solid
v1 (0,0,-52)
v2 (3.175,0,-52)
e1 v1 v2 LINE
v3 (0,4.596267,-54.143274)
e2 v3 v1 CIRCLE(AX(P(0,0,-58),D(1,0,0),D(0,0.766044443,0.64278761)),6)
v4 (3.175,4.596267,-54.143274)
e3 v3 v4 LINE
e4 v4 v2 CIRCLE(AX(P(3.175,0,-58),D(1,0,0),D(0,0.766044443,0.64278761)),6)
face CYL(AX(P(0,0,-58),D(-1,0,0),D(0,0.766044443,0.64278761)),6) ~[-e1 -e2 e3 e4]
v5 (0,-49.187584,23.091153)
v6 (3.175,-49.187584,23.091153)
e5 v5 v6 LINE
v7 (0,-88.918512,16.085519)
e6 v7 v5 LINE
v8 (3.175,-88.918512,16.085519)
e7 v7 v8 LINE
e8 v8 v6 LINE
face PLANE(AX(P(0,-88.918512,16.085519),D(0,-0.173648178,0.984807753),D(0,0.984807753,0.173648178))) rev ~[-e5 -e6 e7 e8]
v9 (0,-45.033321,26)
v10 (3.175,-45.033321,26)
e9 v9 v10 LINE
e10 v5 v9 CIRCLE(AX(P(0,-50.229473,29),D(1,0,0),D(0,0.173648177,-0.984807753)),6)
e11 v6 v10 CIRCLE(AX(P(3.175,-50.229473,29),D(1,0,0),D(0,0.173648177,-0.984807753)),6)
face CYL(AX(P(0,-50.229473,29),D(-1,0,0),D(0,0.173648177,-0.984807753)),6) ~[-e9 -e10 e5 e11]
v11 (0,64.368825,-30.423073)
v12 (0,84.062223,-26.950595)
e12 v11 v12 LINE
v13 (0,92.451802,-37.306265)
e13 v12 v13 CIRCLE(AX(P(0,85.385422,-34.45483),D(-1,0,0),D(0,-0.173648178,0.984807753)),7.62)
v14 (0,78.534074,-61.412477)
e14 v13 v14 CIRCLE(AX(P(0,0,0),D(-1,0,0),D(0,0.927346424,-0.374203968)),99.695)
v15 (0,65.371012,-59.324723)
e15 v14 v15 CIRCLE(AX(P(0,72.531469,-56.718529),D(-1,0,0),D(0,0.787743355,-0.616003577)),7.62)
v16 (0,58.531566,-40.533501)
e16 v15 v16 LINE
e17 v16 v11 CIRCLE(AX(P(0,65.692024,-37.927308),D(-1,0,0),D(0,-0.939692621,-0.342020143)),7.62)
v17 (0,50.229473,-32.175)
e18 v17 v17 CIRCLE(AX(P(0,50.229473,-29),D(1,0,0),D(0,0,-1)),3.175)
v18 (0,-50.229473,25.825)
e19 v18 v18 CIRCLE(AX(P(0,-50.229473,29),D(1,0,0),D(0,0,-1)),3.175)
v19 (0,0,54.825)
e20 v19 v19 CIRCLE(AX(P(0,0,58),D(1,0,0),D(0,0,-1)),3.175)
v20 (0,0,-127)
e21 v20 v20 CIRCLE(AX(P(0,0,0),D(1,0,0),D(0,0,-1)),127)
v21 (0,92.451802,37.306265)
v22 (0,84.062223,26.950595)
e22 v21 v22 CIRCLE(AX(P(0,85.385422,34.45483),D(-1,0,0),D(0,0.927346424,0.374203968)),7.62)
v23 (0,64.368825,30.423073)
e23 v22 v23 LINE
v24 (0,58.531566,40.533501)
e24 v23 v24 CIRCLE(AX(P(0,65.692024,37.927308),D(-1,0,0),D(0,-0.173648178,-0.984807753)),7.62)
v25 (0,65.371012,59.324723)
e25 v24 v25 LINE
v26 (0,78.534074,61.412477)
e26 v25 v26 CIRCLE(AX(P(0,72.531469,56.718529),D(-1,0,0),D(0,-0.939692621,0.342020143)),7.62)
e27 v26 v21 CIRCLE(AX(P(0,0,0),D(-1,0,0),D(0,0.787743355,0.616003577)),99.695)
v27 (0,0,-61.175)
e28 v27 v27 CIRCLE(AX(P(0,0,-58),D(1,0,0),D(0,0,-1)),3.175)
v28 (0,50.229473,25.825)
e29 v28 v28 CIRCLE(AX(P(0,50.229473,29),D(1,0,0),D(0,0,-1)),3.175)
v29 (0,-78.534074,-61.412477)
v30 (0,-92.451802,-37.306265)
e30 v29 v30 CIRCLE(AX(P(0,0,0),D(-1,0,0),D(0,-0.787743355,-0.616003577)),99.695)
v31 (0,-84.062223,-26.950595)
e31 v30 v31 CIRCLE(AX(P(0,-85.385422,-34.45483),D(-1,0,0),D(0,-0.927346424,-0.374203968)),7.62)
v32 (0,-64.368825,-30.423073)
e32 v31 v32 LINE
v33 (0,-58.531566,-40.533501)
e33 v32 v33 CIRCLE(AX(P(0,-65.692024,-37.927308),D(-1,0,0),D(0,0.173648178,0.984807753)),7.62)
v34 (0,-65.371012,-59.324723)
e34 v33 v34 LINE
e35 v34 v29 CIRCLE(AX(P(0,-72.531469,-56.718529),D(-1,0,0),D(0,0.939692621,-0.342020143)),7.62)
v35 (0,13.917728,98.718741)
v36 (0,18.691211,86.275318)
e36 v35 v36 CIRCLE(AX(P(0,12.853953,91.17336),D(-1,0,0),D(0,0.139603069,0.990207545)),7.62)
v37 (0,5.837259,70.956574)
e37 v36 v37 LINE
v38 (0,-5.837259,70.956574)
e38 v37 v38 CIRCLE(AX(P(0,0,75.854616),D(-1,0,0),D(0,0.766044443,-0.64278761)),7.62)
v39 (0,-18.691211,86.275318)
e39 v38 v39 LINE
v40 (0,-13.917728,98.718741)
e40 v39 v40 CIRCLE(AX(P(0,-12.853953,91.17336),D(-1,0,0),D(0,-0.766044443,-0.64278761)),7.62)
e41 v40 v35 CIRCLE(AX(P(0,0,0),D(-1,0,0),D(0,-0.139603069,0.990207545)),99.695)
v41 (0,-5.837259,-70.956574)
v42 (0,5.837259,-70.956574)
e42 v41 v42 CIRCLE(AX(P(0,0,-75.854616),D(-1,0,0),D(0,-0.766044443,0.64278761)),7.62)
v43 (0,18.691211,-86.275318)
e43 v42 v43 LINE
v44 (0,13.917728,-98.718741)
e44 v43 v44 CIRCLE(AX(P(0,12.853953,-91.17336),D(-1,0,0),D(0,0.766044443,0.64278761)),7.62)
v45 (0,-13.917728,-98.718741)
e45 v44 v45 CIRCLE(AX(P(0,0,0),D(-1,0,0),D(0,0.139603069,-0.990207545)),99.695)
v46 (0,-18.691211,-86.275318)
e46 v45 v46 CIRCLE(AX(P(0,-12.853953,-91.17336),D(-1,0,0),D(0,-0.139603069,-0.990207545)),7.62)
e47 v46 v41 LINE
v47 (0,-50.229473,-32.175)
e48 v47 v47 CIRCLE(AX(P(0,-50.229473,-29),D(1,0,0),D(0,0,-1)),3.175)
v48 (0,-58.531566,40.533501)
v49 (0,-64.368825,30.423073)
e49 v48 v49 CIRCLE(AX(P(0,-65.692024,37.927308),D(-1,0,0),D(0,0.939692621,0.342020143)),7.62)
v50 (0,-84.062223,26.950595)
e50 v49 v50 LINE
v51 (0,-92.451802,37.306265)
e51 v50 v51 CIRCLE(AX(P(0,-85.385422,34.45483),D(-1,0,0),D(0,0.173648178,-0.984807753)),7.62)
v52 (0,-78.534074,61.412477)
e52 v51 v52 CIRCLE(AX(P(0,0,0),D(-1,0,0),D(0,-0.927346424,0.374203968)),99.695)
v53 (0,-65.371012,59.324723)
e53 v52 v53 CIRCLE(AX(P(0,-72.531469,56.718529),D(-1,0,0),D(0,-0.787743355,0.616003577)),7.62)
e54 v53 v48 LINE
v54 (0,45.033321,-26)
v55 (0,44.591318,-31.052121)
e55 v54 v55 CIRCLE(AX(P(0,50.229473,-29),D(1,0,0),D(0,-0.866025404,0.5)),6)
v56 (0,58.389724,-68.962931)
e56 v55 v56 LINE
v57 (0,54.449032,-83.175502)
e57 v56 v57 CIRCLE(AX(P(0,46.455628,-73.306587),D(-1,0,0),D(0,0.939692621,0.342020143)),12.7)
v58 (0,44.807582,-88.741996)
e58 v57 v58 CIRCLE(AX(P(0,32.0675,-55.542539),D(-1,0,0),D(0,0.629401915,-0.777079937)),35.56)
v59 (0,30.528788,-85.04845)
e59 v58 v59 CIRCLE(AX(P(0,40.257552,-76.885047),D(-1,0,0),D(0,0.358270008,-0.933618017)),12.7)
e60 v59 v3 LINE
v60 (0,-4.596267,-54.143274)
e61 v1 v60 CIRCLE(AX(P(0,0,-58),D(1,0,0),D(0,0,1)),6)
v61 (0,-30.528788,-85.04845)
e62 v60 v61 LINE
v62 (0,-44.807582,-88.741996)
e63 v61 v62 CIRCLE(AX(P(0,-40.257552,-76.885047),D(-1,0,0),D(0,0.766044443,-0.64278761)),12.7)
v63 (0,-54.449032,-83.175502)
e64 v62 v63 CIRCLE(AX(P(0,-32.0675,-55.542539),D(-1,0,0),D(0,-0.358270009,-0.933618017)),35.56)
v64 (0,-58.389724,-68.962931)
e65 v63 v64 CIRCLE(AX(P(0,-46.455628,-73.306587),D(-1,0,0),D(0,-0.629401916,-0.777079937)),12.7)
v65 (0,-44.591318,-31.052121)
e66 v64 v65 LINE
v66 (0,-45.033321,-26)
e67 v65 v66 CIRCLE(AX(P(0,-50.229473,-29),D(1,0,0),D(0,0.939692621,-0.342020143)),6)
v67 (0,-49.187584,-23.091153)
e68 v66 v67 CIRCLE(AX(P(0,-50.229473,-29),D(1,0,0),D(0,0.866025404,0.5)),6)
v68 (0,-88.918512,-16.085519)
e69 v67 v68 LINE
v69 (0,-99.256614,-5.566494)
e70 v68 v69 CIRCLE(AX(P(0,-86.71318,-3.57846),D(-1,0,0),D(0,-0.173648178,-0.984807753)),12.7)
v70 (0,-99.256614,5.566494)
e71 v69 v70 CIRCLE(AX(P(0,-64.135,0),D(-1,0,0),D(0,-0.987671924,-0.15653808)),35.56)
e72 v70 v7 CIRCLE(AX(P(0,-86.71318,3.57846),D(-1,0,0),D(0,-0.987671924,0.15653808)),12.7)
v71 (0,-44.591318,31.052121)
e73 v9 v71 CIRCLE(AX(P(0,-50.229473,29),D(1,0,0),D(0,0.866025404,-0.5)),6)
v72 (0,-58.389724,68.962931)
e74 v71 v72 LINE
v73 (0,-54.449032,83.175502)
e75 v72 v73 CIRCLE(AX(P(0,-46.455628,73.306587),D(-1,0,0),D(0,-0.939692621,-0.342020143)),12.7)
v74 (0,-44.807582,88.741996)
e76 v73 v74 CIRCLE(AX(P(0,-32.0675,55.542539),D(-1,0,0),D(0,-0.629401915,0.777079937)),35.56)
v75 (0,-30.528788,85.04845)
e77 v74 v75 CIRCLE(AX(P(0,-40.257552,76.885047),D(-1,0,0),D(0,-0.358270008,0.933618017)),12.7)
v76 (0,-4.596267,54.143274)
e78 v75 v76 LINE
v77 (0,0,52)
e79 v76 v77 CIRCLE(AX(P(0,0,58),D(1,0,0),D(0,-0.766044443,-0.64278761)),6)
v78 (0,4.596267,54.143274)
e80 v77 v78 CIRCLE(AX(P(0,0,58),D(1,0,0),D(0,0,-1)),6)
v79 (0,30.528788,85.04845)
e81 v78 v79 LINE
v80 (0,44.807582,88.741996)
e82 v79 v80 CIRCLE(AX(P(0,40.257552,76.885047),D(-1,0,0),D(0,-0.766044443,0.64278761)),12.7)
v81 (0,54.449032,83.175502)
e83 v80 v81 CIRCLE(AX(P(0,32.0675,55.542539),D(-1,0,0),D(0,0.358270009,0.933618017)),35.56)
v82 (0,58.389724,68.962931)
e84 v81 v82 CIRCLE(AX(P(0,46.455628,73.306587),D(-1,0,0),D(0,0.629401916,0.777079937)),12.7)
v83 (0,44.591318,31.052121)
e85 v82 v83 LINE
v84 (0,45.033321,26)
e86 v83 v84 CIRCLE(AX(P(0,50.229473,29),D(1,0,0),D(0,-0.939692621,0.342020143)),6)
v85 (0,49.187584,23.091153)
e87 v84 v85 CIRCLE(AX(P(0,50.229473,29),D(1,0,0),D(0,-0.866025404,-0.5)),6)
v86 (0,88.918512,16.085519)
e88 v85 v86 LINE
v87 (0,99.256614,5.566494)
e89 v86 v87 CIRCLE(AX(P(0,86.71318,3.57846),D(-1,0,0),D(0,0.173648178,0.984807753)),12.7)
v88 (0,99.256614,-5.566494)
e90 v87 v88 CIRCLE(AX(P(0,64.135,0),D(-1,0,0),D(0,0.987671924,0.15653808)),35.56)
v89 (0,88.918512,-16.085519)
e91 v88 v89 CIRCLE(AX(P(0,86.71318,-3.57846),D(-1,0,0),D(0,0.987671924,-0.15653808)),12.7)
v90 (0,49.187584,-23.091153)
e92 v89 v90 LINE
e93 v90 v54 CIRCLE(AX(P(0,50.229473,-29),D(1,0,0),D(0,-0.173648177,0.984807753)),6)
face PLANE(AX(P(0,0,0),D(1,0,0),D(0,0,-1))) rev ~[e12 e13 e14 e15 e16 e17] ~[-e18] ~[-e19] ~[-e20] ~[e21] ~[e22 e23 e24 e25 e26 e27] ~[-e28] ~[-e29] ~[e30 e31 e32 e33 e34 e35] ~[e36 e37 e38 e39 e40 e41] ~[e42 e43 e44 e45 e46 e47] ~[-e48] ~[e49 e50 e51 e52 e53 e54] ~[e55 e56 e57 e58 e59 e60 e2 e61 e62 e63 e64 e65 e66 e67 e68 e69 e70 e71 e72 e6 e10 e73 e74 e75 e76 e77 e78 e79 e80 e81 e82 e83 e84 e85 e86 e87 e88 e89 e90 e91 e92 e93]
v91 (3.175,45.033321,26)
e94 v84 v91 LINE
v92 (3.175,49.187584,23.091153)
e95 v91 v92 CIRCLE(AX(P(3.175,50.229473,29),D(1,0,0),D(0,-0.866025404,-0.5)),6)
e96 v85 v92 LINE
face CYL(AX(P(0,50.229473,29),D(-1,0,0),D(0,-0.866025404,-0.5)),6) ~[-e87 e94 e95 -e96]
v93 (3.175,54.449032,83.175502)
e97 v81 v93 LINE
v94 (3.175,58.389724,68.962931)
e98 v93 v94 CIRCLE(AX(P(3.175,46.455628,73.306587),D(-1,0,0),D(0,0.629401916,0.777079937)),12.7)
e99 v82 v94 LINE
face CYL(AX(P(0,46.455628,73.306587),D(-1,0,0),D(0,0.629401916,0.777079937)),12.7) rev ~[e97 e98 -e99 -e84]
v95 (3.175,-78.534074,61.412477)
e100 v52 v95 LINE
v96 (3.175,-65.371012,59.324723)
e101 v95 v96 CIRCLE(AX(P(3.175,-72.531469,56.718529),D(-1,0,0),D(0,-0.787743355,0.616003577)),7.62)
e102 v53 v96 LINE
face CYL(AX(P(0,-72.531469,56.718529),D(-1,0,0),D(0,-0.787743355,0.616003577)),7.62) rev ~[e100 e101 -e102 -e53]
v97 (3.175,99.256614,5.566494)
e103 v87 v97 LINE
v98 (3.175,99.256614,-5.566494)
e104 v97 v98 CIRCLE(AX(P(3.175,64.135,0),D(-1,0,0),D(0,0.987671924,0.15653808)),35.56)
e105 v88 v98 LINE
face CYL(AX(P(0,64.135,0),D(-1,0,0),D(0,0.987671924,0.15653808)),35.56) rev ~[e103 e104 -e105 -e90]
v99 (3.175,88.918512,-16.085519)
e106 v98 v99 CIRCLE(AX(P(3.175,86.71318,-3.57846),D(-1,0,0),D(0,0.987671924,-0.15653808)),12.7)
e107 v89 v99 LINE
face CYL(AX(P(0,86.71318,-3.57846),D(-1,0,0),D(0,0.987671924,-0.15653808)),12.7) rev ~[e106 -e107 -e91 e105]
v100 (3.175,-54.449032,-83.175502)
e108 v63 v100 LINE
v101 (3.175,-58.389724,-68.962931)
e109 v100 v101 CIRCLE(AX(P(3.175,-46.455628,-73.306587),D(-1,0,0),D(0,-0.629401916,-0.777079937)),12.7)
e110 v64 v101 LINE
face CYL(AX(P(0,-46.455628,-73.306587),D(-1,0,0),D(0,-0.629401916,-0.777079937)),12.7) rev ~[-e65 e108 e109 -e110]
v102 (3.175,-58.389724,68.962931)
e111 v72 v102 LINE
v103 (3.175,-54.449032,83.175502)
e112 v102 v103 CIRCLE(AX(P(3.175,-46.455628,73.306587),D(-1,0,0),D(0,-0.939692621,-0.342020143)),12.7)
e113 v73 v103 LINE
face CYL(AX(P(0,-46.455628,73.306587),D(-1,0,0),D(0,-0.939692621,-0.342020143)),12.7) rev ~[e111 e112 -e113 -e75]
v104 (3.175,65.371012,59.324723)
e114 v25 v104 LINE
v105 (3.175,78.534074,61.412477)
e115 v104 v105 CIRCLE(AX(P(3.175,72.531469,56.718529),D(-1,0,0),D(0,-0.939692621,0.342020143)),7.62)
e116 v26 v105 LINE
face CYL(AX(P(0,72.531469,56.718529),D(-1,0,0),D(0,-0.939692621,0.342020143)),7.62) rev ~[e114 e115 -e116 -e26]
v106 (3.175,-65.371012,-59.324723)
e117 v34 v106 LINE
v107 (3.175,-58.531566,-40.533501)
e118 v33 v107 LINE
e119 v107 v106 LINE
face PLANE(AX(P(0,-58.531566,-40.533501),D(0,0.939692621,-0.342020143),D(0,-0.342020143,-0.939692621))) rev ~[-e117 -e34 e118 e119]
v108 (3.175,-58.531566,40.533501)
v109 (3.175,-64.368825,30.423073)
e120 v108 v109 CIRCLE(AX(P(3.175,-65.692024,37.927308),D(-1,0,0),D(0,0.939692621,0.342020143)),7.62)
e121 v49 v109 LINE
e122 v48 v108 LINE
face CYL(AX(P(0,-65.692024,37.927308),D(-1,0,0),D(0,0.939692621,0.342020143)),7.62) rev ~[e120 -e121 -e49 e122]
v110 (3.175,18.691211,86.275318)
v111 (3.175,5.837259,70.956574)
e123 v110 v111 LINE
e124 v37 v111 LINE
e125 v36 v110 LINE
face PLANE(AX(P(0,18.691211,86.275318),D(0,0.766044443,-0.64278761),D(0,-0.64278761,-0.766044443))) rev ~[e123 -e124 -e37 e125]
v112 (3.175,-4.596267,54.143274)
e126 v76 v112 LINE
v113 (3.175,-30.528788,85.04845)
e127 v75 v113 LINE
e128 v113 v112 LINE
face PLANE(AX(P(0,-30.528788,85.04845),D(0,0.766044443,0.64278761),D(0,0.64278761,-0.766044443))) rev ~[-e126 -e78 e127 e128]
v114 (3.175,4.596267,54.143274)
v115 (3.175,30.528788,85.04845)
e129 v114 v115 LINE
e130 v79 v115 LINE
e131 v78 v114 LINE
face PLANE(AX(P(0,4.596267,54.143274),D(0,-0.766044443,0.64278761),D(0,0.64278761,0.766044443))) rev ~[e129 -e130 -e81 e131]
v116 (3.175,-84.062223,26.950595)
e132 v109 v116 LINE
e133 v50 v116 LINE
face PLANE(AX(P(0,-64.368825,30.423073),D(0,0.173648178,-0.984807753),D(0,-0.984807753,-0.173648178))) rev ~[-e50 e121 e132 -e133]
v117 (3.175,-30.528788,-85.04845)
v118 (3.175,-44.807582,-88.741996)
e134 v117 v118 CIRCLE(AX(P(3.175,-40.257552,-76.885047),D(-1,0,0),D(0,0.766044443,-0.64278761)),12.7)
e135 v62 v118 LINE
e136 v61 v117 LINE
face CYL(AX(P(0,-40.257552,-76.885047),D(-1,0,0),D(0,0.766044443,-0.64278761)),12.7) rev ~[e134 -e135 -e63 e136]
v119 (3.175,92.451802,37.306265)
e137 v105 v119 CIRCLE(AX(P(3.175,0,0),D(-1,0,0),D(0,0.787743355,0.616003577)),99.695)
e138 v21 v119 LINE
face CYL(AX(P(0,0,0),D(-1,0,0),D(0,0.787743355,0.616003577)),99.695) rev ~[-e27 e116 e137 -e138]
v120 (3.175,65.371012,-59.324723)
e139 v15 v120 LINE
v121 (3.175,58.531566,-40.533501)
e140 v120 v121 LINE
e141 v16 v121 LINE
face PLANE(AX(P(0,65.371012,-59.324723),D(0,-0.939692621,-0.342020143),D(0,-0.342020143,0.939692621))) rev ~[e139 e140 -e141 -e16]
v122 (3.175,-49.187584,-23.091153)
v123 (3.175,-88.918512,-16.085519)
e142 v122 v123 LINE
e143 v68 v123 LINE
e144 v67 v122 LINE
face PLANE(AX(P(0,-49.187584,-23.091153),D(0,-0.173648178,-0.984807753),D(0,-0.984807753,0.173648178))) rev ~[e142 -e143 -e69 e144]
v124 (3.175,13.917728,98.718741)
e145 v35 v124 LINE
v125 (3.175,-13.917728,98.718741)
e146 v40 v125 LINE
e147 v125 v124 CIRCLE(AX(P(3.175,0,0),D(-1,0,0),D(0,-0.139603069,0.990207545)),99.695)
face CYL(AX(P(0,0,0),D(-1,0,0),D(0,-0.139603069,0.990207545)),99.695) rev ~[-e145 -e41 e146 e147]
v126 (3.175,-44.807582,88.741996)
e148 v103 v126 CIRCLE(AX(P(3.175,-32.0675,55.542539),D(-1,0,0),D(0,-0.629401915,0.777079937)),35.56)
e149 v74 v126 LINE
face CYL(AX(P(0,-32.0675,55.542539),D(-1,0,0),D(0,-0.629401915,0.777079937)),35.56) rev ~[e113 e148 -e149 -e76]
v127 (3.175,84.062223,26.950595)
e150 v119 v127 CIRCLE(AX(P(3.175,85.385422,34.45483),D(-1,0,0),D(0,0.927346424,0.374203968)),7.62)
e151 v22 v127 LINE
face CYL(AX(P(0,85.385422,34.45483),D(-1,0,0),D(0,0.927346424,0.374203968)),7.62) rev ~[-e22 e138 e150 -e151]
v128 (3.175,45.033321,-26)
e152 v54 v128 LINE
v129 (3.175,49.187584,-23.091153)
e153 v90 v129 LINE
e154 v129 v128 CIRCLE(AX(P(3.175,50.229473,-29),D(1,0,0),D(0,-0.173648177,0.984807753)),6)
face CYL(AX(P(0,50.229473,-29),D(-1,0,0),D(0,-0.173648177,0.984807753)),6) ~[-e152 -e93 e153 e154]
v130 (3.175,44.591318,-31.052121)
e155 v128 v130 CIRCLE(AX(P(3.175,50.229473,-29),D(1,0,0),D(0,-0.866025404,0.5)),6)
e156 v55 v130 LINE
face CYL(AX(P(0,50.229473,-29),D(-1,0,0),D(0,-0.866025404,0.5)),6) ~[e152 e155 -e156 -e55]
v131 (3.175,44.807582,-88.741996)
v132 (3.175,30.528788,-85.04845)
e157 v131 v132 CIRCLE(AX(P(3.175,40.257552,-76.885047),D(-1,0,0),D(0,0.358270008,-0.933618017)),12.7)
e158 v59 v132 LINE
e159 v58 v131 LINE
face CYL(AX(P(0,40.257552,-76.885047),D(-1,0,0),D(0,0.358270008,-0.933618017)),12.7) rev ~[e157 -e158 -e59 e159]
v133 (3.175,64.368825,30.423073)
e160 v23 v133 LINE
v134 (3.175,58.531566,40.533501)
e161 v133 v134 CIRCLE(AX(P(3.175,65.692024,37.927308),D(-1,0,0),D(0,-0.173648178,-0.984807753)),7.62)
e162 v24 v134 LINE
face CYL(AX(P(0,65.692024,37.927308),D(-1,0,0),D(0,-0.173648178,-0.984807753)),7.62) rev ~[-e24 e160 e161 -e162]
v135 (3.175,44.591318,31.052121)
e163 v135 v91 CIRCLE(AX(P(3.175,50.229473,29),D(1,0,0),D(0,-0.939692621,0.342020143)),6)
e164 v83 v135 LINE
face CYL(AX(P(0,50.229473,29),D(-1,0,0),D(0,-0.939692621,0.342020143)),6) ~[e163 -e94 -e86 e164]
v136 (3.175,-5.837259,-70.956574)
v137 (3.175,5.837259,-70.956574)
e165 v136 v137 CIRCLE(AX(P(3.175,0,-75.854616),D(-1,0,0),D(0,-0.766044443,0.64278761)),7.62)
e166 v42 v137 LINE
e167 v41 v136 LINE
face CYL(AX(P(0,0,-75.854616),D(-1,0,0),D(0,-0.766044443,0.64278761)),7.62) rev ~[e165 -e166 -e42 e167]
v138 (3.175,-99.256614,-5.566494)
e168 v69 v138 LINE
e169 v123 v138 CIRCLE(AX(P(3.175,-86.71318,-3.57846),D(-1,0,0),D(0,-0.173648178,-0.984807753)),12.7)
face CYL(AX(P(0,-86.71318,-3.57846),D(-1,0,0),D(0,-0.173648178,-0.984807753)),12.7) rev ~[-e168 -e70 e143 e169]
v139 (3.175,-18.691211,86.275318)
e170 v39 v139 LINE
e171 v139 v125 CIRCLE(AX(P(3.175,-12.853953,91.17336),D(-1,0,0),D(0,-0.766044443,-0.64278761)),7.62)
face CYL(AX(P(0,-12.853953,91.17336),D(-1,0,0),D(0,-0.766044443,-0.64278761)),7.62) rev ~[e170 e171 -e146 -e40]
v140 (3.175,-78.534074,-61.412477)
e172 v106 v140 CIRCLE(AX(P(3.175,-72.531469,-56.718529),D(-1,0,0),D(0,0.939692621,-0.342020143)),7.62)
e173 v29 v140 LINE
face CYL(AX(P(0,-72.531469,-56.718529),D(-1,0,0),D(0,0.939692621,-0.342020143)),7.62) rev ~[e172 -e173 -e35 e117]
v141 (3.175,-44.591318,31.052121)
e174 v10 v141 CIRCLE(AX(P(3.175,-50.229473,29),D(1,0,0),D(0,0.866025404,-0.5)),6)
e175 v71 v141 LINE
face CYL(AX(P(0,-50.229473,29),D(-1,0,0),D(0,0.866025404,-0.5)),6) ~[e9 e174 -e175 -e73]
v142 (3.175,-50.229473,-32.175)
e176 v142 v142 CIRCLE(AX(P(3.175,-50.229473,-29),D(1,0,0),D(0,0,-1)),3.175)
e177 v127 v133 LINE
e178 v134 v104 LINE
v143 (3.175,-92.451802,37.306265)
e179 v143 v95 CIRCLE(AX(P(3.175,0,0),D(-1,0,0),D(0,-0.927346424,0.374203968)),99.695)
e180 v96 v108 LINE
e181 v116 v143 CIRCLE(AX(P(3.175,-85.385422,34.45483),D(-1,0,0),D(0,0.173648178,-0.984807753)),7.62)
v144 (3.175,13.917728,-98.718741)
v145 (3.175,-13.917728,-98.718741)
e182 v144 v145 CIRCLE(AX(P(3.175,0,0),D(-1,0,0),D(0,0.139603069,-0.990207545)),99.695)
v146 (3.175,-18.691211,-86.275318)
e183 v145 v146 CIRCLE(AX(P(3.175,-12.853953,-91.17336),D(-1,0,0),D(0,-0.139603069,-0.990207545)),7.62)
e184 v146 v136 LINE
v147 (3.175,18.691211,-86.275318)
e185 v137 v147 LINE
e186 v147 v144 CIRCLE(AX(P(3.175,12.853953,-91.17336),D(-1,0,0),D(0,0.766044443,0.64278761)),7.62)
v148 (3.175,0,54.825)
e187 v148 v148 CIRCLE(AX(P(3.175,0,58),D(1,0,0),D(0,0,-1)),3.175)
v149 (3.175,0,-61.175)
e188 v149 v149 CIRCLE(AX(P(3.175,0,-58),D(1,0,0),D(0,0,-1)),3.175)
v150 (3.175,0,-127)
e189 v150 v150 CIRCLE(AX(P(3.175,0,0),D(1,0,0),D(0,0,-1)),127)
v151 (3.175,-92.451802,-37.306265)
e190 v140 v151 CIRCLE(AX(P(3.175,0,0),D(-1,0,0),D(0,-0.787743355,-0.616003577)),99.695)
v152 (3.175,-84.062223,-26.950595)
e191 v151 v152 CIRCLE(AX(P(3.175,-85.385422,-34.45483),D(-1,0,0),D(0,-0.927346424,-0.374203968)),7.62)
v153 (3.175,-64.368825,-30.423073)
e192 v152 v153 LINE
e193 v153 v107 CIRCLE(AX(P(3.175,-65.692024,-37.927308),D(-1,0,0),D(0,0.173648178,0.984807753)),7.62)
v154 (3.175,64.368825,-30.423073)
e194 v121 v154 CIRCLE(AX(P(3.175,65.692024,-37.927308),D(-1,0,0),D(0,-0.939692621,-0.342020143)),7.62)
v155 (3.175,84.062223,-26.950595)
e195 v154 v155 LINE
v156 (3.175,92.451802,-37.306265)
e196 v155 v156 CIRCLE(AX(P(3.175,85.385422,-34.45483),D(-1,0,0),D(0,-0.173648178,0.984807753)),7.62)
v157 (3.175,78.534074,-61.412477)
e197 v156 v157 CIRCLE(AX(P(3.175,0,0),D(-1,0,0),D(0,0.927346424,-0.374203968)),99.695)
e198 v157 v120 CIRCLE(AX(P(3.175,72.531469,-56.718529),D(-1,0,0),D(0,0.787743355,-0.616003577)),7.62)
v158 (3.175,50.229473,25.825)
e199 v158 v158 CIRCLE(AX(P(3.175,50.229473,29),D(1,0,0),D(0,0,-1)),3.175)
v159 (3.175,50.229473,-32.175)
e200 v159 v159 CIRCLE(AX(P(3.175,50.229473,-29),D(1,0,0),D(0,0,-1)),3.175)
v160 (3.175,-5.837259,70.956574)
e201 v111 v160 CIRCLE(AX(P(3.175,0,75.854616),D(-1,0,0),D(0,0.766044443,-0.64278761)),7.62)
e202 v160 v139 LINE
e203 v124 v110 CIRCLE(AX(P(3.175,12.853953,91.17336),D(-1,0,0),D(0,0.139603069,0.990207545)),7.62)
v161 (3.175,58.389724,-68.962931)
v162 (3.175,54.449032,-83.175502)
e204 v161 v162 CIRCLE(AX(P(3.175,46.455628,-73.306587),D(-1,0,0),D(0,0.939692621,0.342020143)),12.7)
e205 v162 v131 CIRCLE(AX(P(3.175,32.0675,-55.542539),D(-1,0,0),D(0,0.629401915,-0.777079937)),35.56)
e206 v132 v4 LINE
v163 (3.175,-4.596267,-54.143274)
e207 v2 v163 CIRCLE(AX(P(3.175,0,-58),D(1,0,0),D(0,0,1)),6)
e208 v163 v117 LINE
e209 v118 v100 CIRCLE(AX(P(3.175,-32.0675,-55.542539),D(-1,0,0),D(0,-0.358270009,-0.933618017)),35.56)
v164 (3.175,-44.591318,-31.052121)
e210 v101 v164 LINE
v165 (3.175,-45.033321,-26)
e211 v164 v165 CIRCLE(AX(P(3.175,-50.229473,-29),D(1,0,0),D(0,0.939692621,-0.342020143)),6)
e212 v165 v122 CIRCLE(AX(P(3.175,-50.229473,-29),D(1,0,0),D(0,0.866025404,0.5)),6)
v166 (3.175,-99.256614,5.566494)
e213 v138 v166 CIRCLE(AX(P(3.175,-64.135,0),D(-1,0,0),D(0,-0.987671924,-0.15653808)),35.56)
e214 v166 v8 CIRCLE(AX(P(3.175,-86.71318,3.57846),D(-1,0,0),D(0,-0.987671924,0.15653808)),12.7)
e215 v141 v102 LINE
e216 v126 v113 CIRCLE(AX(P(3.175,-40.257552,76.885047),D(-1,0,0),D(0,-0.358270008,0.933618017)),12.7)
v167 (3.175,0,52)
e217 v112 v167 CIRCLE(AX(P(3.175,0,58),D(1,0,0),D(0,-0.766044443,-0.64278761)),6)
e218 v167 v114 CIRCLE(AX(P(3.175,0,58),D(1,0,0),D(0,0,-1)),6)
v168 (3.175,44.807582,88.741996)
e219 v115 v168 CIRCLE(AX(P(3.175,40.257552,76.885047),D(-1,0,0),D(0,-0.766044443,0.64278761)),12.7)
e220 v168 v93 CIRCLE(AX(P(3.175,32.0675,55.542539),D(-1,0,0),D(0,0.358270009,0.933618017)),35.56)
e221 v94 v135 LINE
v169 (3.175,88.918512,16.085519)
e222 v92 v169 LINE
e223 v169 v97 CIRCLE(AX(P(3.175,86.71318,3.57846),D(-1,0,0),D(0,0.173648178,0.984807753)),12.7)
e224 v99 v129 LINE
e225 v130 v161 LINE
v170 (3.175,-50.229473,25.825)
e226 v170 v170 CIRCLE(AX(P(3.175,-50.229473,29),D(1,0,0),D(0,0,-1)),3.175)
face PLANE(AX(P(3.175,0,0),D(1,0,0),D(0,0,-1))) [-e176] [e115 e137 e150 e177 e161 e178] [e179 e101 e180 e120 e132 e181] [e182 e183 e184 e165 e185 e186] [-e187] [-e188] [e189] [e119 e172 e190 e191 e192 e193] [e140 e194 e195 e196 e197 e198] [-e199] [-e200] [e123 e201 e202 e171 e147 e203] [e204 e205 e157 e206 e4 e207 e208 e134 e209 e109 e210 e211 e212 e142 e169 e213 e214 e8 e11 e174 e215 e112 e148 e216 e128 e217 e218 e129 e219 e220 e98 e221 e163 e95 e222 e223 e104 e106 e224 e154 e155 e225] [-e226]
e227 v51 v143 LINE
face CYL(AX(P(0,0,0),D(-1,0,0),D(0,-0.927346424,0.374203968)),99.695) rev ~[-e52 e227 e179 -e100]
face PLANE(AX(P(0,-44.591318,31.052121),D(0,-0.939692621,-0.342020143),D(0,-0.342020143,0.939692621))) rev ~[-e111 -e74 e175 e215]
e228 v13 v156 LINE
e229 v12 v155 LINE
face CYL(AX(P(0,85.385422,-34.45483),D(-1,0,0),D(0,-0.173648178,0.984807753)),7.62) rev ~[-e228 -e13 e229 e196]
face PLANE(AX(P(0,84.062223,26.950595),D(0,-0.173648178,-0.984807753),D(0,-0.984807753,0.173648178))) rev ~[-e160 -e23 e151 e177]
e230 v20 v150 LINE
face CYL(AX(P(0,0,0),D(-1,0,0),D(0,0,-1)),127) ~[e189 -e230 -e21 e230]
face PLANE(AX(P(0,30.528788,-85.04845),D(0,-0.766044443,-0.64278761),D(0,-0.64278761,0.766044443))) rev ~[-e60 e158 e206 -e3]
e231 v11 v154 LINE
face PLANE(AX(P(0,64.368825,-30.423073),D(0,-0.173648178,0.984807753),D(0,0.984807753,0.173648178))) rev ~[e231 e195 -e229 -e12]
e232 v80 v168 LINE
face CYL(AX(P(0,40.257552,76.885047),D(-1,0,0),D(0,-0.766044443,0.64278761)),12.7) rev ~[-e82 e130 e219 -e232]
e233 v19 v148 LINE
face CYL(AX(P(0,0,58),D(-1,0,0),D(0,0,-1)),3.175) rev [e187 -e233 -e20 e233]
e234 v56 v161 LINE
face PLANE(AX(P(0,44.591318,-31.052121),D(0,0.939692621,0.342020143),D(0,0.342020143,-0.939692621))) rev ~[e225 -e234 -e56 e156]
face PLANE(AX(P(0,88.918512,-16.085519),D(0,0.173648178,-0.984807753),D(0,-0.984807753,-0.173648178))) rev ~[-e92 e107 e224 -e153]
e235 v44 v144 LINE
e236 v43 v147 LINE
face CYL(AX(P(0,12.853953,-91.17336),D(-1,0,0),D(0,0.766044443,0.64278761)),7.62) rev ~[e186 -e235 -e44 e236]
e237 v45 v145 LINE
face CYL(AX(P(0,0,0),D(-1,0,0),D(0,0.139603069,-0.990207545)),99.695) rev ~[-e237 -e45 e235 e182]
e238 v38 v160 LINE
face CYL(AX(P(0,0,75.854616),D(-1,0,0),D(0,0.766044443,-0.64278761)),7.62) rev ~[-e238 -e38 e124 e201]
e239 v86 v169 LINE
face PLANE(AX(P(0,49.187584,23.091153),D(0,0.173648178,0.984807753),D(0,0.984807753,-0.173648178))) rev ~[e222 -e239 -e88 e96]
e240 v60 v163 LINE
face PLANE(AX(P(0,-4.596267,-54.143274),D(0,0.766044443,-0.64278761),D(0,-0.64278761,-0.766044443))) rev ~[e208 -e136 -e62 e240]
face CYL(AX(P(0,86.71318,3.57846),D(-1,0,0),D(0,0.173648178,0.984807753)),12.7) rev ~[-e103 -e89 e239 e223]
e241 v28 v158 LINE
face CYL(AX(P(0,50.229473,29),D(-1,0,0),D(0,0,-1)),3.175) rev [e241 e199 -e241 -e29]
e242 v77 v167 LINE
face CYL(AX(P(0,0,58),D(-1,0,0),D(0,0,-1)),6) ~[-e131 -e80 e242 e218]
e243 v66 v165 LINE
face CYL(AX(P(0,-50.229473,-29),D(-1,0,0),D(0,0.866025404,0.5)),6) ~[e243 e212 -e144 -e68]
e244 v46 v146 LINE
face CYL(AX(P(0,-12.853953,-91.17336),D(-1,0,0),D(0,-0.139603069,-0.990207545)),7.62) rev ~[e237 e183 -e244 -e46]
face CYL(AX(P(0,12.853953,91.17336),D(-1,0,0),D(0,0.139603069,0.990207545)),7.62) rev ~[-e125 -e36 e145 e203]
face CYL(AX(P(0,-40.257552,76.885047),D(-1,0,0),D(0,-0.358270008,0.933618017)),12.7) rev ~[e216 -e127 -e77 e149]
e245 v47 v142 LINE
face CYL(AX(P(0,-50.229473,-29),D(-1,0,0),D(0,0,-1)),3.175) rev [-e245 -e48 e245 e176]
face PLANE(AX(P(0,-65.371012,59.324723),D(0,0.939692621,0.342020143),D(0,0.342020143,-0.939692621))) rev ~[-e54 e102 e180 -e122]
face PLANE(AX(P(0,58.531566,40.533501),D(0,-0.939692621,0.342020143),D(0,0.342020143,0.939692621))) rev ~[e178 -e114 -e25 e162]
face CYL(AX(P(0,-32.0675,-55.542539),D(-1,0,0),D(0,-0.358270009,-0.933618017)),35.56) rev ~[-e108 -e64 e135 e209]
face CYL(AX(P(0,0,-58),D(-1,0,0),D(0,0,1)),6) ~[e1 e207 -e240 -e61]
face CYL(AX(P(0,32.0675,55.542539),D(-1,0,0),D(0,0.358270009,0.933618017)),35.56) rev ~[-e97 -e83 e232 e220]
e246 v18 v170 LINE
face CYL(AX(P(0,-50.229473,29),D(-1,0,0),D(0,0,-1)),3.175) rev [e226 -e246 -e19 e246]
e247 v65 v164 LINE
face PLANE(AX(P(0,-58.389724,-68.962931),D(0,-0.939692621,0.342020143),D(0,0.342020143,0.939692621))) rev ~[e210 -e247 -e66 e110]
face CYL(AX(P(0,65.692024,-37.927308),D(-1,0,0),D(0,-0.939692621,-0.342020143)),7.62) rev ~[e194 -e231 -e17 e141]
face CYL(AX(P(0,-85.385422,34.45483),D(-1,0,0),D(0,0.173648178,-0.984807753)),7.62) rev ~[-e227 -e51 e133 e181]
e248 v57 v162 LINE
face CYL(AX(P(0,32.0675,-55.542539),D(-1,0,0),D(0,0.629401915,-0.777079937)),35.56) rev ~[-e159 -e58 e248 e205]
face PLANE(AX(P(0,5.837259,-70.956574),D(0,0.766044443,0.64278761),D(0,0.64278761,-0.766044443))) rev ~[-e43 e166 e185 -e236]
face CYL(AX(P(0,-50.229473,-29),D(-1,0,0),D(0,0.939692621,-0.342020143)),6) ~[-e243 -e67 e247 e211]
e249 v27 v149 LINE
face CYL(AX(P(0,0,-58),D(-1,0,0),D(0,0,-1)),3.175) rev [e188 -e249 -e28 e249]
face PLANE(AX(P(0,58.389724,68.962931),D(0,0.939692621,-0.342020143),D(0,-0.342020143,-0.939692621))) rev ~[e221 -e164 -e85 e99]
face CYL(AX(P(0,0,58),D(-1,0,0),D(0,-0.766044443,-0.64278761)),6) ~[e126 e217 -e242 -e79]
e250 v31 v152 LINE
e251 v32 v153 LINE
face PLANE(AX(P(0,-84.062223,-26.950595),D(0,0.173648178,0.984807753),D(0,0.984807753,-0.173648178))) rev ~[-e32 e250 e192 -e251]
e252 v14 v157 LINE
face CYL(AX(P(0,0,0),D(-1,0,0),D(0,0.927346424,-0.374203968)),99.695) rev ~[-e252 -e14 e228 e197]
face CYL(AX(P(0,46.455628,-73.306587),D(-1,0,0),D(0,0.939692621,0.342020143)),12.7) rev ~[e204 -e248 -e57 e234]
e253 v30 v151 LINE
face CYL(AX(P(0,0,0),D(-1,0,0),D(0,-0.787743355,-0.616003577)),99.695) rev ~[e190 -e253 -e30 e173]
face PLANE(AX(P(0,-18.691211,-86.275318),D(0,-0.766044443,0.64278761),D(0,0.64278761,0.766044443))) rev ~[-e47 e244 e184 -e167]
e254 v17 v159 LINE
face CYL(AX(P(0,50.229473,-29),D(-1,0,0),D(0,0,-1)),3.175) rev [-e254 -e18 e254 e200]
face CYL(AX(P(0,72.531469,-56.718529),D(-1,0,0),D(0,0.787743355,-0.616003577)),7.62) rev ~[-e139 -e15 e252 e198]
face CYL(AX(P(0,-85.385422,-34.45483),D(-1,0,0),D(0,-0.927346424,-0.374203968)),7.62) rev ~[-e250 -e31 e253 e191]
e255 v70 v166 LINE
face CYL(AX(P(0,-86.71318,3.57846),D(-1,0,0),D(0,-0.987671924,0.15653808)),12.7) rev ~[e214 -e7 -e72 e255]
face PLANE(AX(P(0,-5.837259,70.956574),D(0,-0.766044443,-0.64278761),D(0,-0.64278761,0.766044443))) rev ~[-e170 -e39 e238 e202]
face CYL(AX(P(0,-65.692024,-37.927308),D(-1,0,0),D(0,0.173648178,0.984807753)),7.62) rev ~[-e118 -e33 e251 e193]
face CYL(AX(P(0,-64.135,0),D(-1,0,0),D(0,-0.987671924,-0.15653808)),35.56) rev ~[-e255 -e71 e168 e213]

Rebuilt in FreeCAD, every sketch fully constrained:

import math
import FreeCAD as App
import Part
import Sketcher
Q = App.Units.Quantity

doc = App.newDocument("Part")
params = doc.addObject("Spreadsheet::Sheet", "Params")
for row, (alias, value) in enumerate([
    ("sketch1_diameter", "10 in"),
    ("sketch1_radius", "0.3 in"),
    ("sketch1_radius2", "0.5 in"),
    ("sketch1_radius3", "1.4 in"),
    ("sketch1_diameter2", "0.25 in"),
    ("pad1_length", "0.125 in"),
], start=1):
    params.set(f"A{row}", alias)
    params.set(f"B{row}", "=" + value)
    params.setAlias(f"B{row}", alias)

body = doc.addObject("PartDesign::Body", "Body")

sketch1 = body.newObject("Sketcher::SketchObject", "Sketch")
sketch1.AttachmentSupport = (doc.getObject("YZ_Plane"), [""])
sketch1.MapMode = "FlatFace"
sketch1.addGeometry([
    Part.Circle(App.Vector(0, 0, 0), App.Vector(0, 0, 1), 127),
    Part.LineSegment(App.Vector(-65.4, 59.3, 0), App.Vector(-58.5, 40.5, 0)),
    Part.ArcOfCircle(Part.Circle(App.Vector(-65.7, 37.9, 0), App.Vector(0, 0, 1), 7.6), math.radians(-80), math.radians(20)),
    Part.LineSegment(App.Vector(-64.4, 30.4, 0), App.Vector(-84.1, 27, 0)),
    Part.ArcOfCircle(Part.Circle(App.Vector(-85.4, 34.5, 0), App.Vector(0, 0, 1), 7.6), math.radians(158), math.radians(280)),
    Part.ArcOfCircle(Part.Circle(App.Vector(0, 0, 0), App.Vector(0, 0, 1), 99.7), math.radians(141.98), math.radians(158.02)),
    Part.ArcOfCircle(Part.Circle(App.Vector(-72.5, 56.7, 0), App.Vector(0, 0, 1), 7.6), math.radians(20), math.radians(142)),
    Part.Circle(App.Vector(-50.2, 29, 0), App.Vector(0, 0, 1), 3.2),
    Part.LineSegment(App.Vector(18.7, 86.3, 0), App.Vector(5.8, 71, 0)),
    Part.ArcOfCircle(Part.Circle(App.Vector(0, 75.9, 0), App.Vector(0, 0, 1), 7.6), math.radians(-140), math.radians(-40)),
    Part.LineSegment(App.Vector(-5.8, 71, 0), App.Vector(-18.7, 86.3, 0)),
    Part.ArcOfCircle(Part.Circle(App.Vector(-12.9, 91.2, 0), App.Vector(0, 0, 1), 7.6), math.radians(98), math.radians(220)),
    Part.ArcOfCircle(Part.Circle(App.Vector(0, 0, 0), App.Vector(0, 0, 1), 99.7), math.radians(81.98), math.radians(98.02)),
    Part.ArcOfCircle(Part.Circle(App.Vector(12.9, 91.2, 0), App.Vector(0, 0, 1), 7.6), math.radians(-40), math.radians(82)),
    Part.Circle(App.Vector(0, 58, 0), App.Vector(0, 0, 1), 3.2),
    Part.LineSegment(App.Vector(-84.1, -27, 0), App.Vector(-64.4, -30.4, 0)),
    Part.ArcOfCircle(Part.Circle(App.Vector(-65.7, -37.9, 0), App.Vector(0, 0, 1), 7.6), math.radians(-20), math.radians(80)),
    Part.LineSegment(App.Vector(-58.5, -40.5, 0), App.Vector(-65.4, -59.3, 0)),
    Part.ArcOfCircle(Part.Circle(App.Vector(-72.5, -56.7, 0), App.Vector(0, 0, 1), 7.6), math.radians(-142), math.radians(-20)),
    Part.ArcOfCircle(Part.Circle(App.Vector(0, 0, 0), App.Vector(0, 0, 1), 99.7), math.radians(-158.02), math.radians(-141.98)),
    Part.ArcOfCircle(Part.Circle(App.Vector(-85.4, -34.5, 0), App.Vector(0, 0, 1), 7.6), math.radians(80), math.radians(202)),
    Part.Circle(App.Vector(-50.2, -29, 0), App.Vector(0, 0, 1), 3.2),
    Part.ArcOfCircle(Part.Circle(App.Vector(86.7, -3.6, 0), App.Vector(0, 0, 1), 12.7), math.radians(-80), math.radians(-9)),
    Part.LineSegment(App.Vector(88.9, -16.1, 0), App.Vector(49.2, -23.1, 0)),
    Part.ArcOfCircle(Part.Circle(App.Vector(50.2, -29, 0), App.Vector(0, 0, 1), 6), math.radians(100), math.radians(150)),
    Part.ArcOfCircle(Part.Circle(App.Vector(50.2, -29, 0), App.Vector(0, 0, 1), 6), math.radians(150), math.radians(200)),
    Part.LineSegment(App.Vector(44.6, -31.1, 0), App.Vector(58.4, -69, 0)),
    Part.ArcOfCircle(Part.Circle(App.Vector(46.5, -73.3, 0), App.Vector(0, 0, 1), 12.7), math.radians(-51), math.radians(20)),
    Part.ArcOfCircle(Part.Circle(App.Vector(32.1, -55.5, 0), App.Vector(0, 0, 1), 35.6), math.radians(-69.01), math.radians(-50.99)),
    Part.ArcOfCircle(Part.Circle(App.Vector(40.3, -76.9, 0), App.Vector(0, 0, 1), 12.7), math.radians(-140), math.radians(-69)),
    Part.LineSegment(App.Vector(30.5, -85, 0), App.Vector(4.6, -54.1, 0)),
    Part.ArcOfCircle(Part.Circle(App.Vector(0, -58, 0), App.Vector(0, 0, 1), 6), math.radians(40), math.radians(90)),
    Part.ArcOfCircle(Part.Circle(App.Vector(0, -58, 0), App.Vector(0, 0, 1), 6), math.radians(90), math.radians(140)),
    Part.LineSegment(App.Vector(-4.6, -54.1, 0), App.Vector(-30.5, -85, 0)),
    Part.ArcOfCircle(Part.Circle(App.Vector(-40.3, -76.9, 0), App.Vector(0, 0, 1), 12.7), math.radians(-111), math.radians(-40)),
    Part.ArcOfCircle(Part.Circle(App.Vector(-32.1, -55.5, 0), App.Vector(0, 0, 1), 35.6), math.radians(-129.01), math.radians(-110.99)),
    Part.ArcOfCircle(Part.Circle(App.Vector(-46.5, -73.3, 0), App.Vector(0, 0, 1), 12.7), math.radians(160), math.radians(231)),
    Part.LineSegment(App.Vector(-58.4, -69, 0), App.Vector(-44.6, -31.1, 0)),
    Part.ArcOfCircle(Part.Circle(App.Vector(-50.2, -29, 0), App.Vector(0, 0, 1), 6), math.radians(-20), math.radians(30)),
    Part.ArcOfCircle(Part.Circle(App.Vector(-50.2, -29, 0), App.Vector(0, 0, 1), 6), math.radians(30), math.radians(80)),
    Part.LineSegment(App.Vector(-49.2, -23.1, 0), App.Vector(-88.9, -16.1, 0)),
    Part.ArcOfCircle(Part.Circle(App.Vector(-86.7, -3.6, 0), App.Vector(0, 0, 1), 12.7), math.radians(-171), math.radians(-100)),
    Part.ArcOfCircle(Part.Circle(App.Vector(-64.1, 0, 0), App.Vector(0, 0, 1), 35.6), math.radians(170.99), math.radians(189.01)),
    Part.ArcOfCircle(Part.Circle(App.Vector(-86.7, 3.6, 0), App.Vector(0, 0, 1), 12.7), math.radians(100), math.radians(171)),
    Part.LineSegment(App.Vector(-88.9, 16.1, 0), App.Vector(-49.2, 23.1, 0)),
    Part.ArcOfCircle(Part.Circle(App.Vector(-50.2, 29, 0), App.Vector(0, 0, 1), 6), math.radians(-80), math.radians(-30)),
    Part.ArcOfCircle(Part.Circle(App.Vector(-50.2, 29, 0), App.Vector(0, 0, 1), 6), math.radians(-30), math.radians(20)),
    Part.LineSegment(App.Vector(-44.6, 31.1, 0), App.Vector(-58.4, 69, 0)),
    Part.ArcOfCircle(Part.Circle(App.Vector(-46.5, 73.3, 0), App.Vector(0, 0, 1), 12.7), math.radians(129), math.radians(200)),
    Part.ArcOfCircle(Part.Circle(App.Vector(-32.1, 55.5, 0), App.Vector(0, 0, 1), 35.6), math.radians(110.99), math.radians(129.01)),
    Part.ArcOfCircle(Part.Circle(App.Vector(-40.3, 76.9, 0), App.Vector(0, 0, 1), 12.7), math.radians(40), math.radians(111)),
    Part.LineSegment(App.Vector(-30.5, 85, 0), App.Vector(-4.6, 54.1, 0)),
    Part.ArcOfCircle(Part.Circle(App.Vector(0, 58, 0), App.Vector(0, 0, 1), 6), math.radians(-140), math.radians(-90)),
    Part.ArcOfCircle(Part.Circle(App.Vector(0, 58, 0), App.Vector(0, 0, 1), 6), math.radians(-90), math.radians(-40)),
    Part.LineSegment(App.Vector(4.6, 54.1, 0), App.Vector(30.5, 85, 0)),
    Part.ArcOfCircle(Part.Circle(App.Vector(40.3, 76.9, 0), App.Vector(0, 0, 1), 12.7), math.radians(69), math.radians(140)),
    Part.ArcOfCircle(Part.Circle(App.Vector(32.1, 55.5, 0), App.Vector(0, 0, 1), 35.6), math.radians(50.99), math.radians(69.01)),
    Part.ArcOfCircle(Part.Circle(App.Vector(46.5, 73.3, 0), App.Vector(0, 0, 1), 12.7), math.radians(-20), math.radians(51)),
    Part.LineSegment(App.Vector(58.4, 69, 0), App.Vector(44.6, 31.1, 0)),
    Part.ArcOfCircle(Part.Circle(App.Vector(50.2, 29, 0), App.Vector(0, 0, 1), 6), math.radians(160), math.radians(210)),
    Part.ArcOfCircle(Part.Circle(App.Vector(50.2, 29, 0), App.Vector(0, 0, 1), 6), math.radians(-150), math.radians(-100)),
    Part.LineSegment(App.Vector(49.2, 23.1, 0), App.Vector(88.9, 16.1, 0)),
    Part.ArcOfCircle(Part.Circle(App.Vector(86.7, 3.6, 0), App.Vector(0, 0, 1), 12.7), math.radians(9), math.radians(80)),
    Part.ArcOfCircle(Part.Circle(App.Vector(64.1, 0, 0), App.Vector(0, 0, 1), 35.6), math.radians(-9.01), math.radians(9.01)),
    Part.Circle(App.Vector(0, -58, 0), App.Vector(0, 0, 1), 3.2),
    Part.LineSegment(App.Vector(-18.7, -86.3, 0), App.Vector(-5.8, -71, 0)),
    Part.ArcOfCircle(Part.Circle(App.Vector(0, -75.9, 0), App.Vector(0, 0, 1), 7.6), math.radians(40), math.radians(140)),
    Part.LineSegment(App.Vector(5.8, -71, 0), App.Vector(18.7, -86.3, 0)),
    Part.ArcOfCircle(Part.Circle(App.Vector(12.9, -91.2, 0), App.Vector(0, 0, 1), 7.6), math.radians(-82), math.radians(40)),
    Part.ArcOfCircle(Part.Circle(App.Vector(0, 0, 0), App.Vector(0, 0, 1), 99.7), math.radians(-98.02), math.radians(-81.98)),
    Part.ArcOfCircle(Part.Circle(App.Vector(-12.9, -91.2, 0), App.Vector(0, 0, 1), 7.6), math.radians(140), math.radians(262)),
    Part.Circle(App.Vector(50.2, 29, 0), App.Vector(0, 0, 1), 3.2),
    Part.LineSegment(App.Vector(84.1, 27, 0), App.Vector(64.4, 30.4, 0)),
    Part.ArcOfCircle(Part.Circle(App.Vector(65.7, 37.9, 0), App.Vector(0, 0, 1), 7.6), math.radians(160), math.radians(260)),
    Part.LineSegment(App.Vector(58.5, 40.5, 0), App.Vector(65.4, 59.3, 0)),
    Part.ArcOfCircle(Part.Circle(App.Vector(72.5, 56.7, 0), App.Vector(0, 0, 1), 7.6), math.radians(38), math.radians(160)),
    Part.ArcOfCircle(Part.Circle(App.Vector(0, 0, 0), App.Vector(0, 0, 1), 99.7), math.radians(21.98), math.radians(38.02)),
    Part.ArcOfCircle(Part.Circle(App.Vector(85.4, 34.5, 0), App.Vector(0, 0, 1), 7.6), math.radians(-100), math.radians(22)),
    Part.Circle(App.Vector(50.2, -29, 0), App.Vector(0, 0, 1), 3.2),
    Part.LineSegment(App.Vector(65.4, -59.3, 0), App.Vector(58.5, -40.5, 0)),
    Part.ArcOfCircle(Part.Circle(App.Vector(65.7, -37.9, 0), App.Vector(0, 0, 1), 7.6), math.radians(100), math.radians(200)),
    Part.LineSegment(App.Vector(64.4, -30.4, 0), App.Vector(84.1, -27, 0)),
    Part.ArcOfCircle(Part.Circle(App.Vector(85.4, -34.5, 0), App.Vector(0, 0, 1), 7.6), math.radians(-22), math.radians(100)),
    Part.ArcOfCircle(Part.Circle(App.Vector(0, 0, 0), App.Vector(0, 0, 1), 99.7), math.radians(-38.02), math.radians(-21.98)),
    Part.ArcOfCircle(Part.Circle(App.Vector(72.5, -56.7, 0), App.Vector(0, 0, 1), 7.6), math.radians(-160), math.radians(-38)),
], False)
sketch1.addConstraint([
    Sketcher.Constraint("Tangent", 1, 2, 2, 2),
    Sketcher.Constraint("Tangent", 2, 1, 3, 1),
    Sketcher.Constraint("Tangent", 3, 2, 4, 2),
    Sketcher.Constraint("Tangent", 4, 1, 5, 2),
    Sketcher.Constraint("Tangent", 5, 1, 6, 2),
    Sketcher.Constraint("Tangent", 6, 1, 1, 1),
    Sketcher.Constraint("Tangent", 8, 2, 9, 2),
    Sketcher.Constraint("Tangent", 9, 1, 10, 1),
    Sketcher.Constraint("Tangent", 10, 2, 11, 2),
    Sketcher.Constraint("Tangent", 11, 1, 12, 2),
    Sketcher.Constraint("Tangent", 12, 1, 13, 2),
    Sketcher.Constraint("Tangent", 13, 1, 8, 1),
    Sketcher.Constraint("Tangent", 15, 2, 16, 2),
    Sketcher.Constraint("Tangent", 16, 1, 17, 1),
    Sketcher.Constraint("Tangent", 17, 2, 18, 2),
    Sketcher.Constraint("Tangent", 18, 1, 19, 2),
    Sketcher.Constraint("Tangent", 19, 1, 20, 2),
    Sketcher.Constraint("Tangent", 20, 1, 15, 1),
    Sketcher.Constraint("Tangent", 22, 1, 23, 1),
    Sketcher.Constraint("Tangent", 23, 2, 24, 1),
    Sketcher.Constraint("Tangent", 24, 2, 25, 1),
    Sketcher.Constraint("Tangent", 25, 2, 26, 1),
    Sketcher.Constraint("Tangent", 26, 2, 27, 2),
    Sketcher.Constraint("Tangent", 27, 1, 28, 2),
    Sketcher.Constraint("Tangent", 28, 1, 29, 2),
    Sketcher.Constraint("Tangent", 29, 1, 30, 1),
    Sketcher.Constraint("Tangent", 30, 2, 31, 1),
    Sketcher.Constraint("Tangent", 31, 2, 32, 1),
    Sketcher.Constraint("Tangent", 32, 2, 33, 1),
    Sketcher.Constraint("Tangent", 33, 2, 34, 2),
    Sketcher.Constraint("Tangent", 34, 1, 35, 2),
    Sketcher.Constraint("Tangent", 35, 1, 36, 2),
    Sketcher.Constraint("Tangent", 36, 1, 37, 1),
    Sketcher.Constraint("Tangent", 37, 2, 38, 1),
    Sketcher.Constraint("Tangent", 38, 2, 39, 1),
    Sketcher.Constraint("Tangent", 39, 2, 40, 1),
    Sketcher.Constraint("Tangent", 40, 2, 41, 2),
    Sketcher.Constraint("Tangent", 41, 1, 42, 2),
    Sketcher.Constraint("Tangent", 42, 1, 43, 2),
    Sketcher.Constraint("Tangent", 43, 1, 44, 1),
    Sketcher.Constraint("Tangent", 44, 2, 45, 1),
    Sketcher.Constraint("Tangent", 45, 2, 46, 1),
    Sketcher.Constraint("Tangent", 46, 2, 47, 1),
    Sketcher.Constraint("Tangent", 47, 2, 48, 2),
    Sketcher.Constraint("Tangent", 48, 1, 49, 2),
    Sketcher.Constraint("Tangent", 49, 1, 50, 2),
    Sketcher.Constraint("Tangent", 50, 1, 51, 1),
    Sketcher.Constraint("Tangent", 51, 2, 52, 1),
    Sketcher.Constraint("Tangent", 52, 2, 53, 1),
    Sketcher.Constraint("Tangent", 53, 2, 54, 1),
    Sketcher.Constraint("Tangent", 54, 2, 55, 2),
    Sketcher.Constraint("Tangent", 55, 1, 56, 2),
    Sketcher.Constraint("Tangent", 56, 1, 57, 2),
    Sketcher.Constraint("Tangent", 57, 1, 58, 1),
    Sketcher.Constraint("Tangent", 58, 2, 59, 1),
    Sketcher.Constraint("Tangent", 59, 2, 60, 1),
    Sketcher.Constraint("Tangent", 60, 2, 61, 1),
    Sketcher.Constraint("Tangent", 61, 2, 62, 2),
    Sketcher.Constraint("Tangent", 62, 1, 63, 2),
    Sketcher.Constraint("Tangent", 63, 1, 22, 2),
    Sketcher.Constraint("Tangent", 65, 2, 66, 2),
    Sketcher.Constraint("Tangent", 66, 1, 67, 1),
    Sketcher.Constraint("Tangent", 67, 2, 68, 2),
    Sketcher.Constraint("Tangent", 68, 1, 69, 2),
    Sketcher.Constraint("Tangent", 69, 1, 70, 2),
    Sketcher.Constraint("Tangent", 70, 1, 65, 1),
    Sketcher.Constraint("Tangent", 72, 2, 73, 2),
    Sketcher.Constraint("Tangent", 73, 1, 74, 1),
    Sketcher.Constraint("Tangent", 74, 2, 75, 2),
    Sketcher.Constraint("Tangent", 75, 1, 76, 2),
    Sketcher.Constraint("Tangent", 76, 1, 77, 2),
    Sketcher.Constraint("Tangent", 77, 1, 72, 1),
    Sketcher.Constraint("Tangent", 79, 2, 80, 2),
    Sketcher.Constraint("Tangent", 80, 1, 81, 1),
    Sketcher.Constraint("Tangent", 81, 2, 82, 2),
    Sketcher.Constraint("Tangent", 82, 1, 83, 2),
    Sketcher.Constraint("Tangent", 83, 1, 84, 2),
    Sketcher.Constraint("Tangent", 84, 1, 79, 1),
    Sketcher.Constraint("Coincident", 0, 3, -1, 1),
    Sketcher.Constraint("Coincident", 5, 3, -1, 1),
    Sketcher.Constraint("Coincident", 12, 3, -1, 1),
    Sketcher.Constraint("Coincident", 19, 3, -1, 1),
    Sketcher.Constraint("Coincident", 69, 3, -1, 1),
    Sketcher.Constraint("Coincident", 76, 3, -1, 1),
    Sketcher.Constraint("Coincident", 83, 3, -1, 1),
    Sketcher.Constraint("Coincident", 38, 3, 21, 3),
    Sketcher.Constraint("Coincident", 45, 3, 7, 3),
    Sketcher.Constraint("Coincident", 52, 3, 14, 3),
    Sketcher.Constraint("Coincident", 64, 3, 31, 3),
    Sketcher.Constraint("Coincident", 71, 3, 59, 3),
    Sketcher.Constraint("Coincident", 78, 3, 24, 3),
    Sketcher.Constraint("Equal", 2, 4),
    Sketcher.Constraint("Equal", 4, 6),
    Sketcher.Constraint("Equal", 6, 9),
    Sketcher.Constraint("Equal", 9, 11),
    Sketcher.Constraint("Equal", 5, 12),
    Sketcher.Constraint("Equal", 11, 13),
    Sketcher.Constraint("Equal", 7, 14),
    Sketcher.Constraint("Equal", 13, 16),
    Sketcher.Constraint("Equal", 16, 18),
    Sketcher.Constraint("Equal", 12, 19),
    Sketcher.Constraint("Equal", 18, 20),
    Sketcher.Constraint("Equal", 14, 21),
    Sketcher.Constraint("Equal", 24, 25),
    Sketcher.Constraint("Equal", 22, 27),
    Sketcher.Constraint("Equal", 27, 29),
    Sketcher.Constraint("Equal", 25, 31),
    Sketcher.Constraint("Equal", 31, 32),
    Sketcher.Constraint("Equal", 29, 34),
    Sketcher.Constraint("Equal", 28, 35),
    Sketcher.Constraint("Equal", 34, 36),
    Sketcher.Constraint("Equal", 32, 38),
    Sketcher.Constraint("Equal", 38, 39),
    Sketcher.Constraint("Equal", 36, 41),
    Sketcher.Constraint("Equal", 35, 42),
    Sketcher.Constraint("Equal", 41, 43),
    Sketcher.Constraint("Equal", 39, 45),
    Sketcher.Constraint("Equal", 45, 46),
    Sketcher.Constraint("Equal", 43, 48),
    Sketcher.Constraint("Equal", 42, 49),
    Sketcher.Constraint("Equal", 48, 50),
    Sketcher.Constraint("Equal", 46, 52),
    Sketcher.Constraint("Equal", 52, 53),
    Sketcher.Constraint("Equal", 50, 55),
    Sketcher.Constraint("Equal", 49, 56),
    Sketcher.Constraint("Equal", 55, 57),
    Sketcher.Constraint("Equal", 53, 59),
    Sketcher.Constraint("Equal", 59, 60),
    Sketcher.Constraint("Equal", 57, 62),
    Sketcher.Constraint("Equal", 56, 63),
    Sketcher.Constraint("Equal", 21, 64),
    Sketcher.Constraint("Equal", 20, 66),
    Sketcher.Constraint("Equal", 66, 68),
    Sketcher.Constraint("Equal", 19, 69),
    Sketcher.Constraint("Equal", 68, 70),
    Sketcher.Constraint("Equal", 64, 71),
    Sketcher.Constraint("Equal", 70, 73),
    Sketcher.Constraint("Equal", 73, 75),
    Sketcher.Constraint("Equal", 69, 76),
    Sketcher.Constraint("Equal", 75, 77),
    Sketcher.Constraint("Equal", 71, 78),
    Sketcher.Constraint("Equal", 77, 80),
    Sketcher.Constraint("Equal", 80, 82),
    Sketcher.Constraint("Equal", 76, 83),
    Sketcher.Constraint("Equal", 82, 84),
    Sketcher.Constraint("Symmetric", 7, 3, 24, 3, -1, 1),
    Sketcher.Constraint("Symmetric", 14, 3, 31, 3, -1, 1),
    Sketcher.Constraint("Symmetric", 22, 3, 43, 3, -1, 1),
    Sketcher.Constraint("Symmetric", 27, 3, 48, 3, -1, 1),
    Sketcher.Constraint("Symmetric", 29, 3, 50, 3, -1, 1),
    Sketcher.Constraint("Symmetric", 34, 3, 55, 3, -1, 1),
    Sketcher.Constraint("Symmetric", 36, 3, 57, 3, -1, 1),
    Sketcher.Constraint("Symmetric", 21, 3, 59, 3, -1, 1),
    Sketcher.Constraint("Symmetric", 41, 3, 62, 3, -1, 1),
    Sketcher.Constraint("Symmetric", 9, 3, 66, 3, -1, 1),
    Sketcher.Constraint("Symmetric", 16, 3, 73, 3, -1, 1),
    Sketcher.Constraint("Symmetric", 2, 3, 80, 3, -1, 1),
    Sketcher.Constraint("Symmetric", 21, 3, 24, 3, -2),
    Sketcher.Constraint("Symmetric", 29, 3, 34, 3, -2),
    Sketcher.Constraint("Symmetric", 27, 3, 36, 3, -2),
    Sketcher.Constraint("Symmetric", 22, 3, 41, 3, -2),
    Sketcher.Constraint("Symmetric", 2, 3, 73, 3, -2),
    Sketcher.Constraint("Symmetric", 8, 2, 9, 1, -2),
    Sketcher.Constraint("PointOnObject", 14, 3, -2),
    Sketcher.Constraint("PointOnObject", 31, 2, -2),
    Sketcher.Constraint("PointOnObject", 52, 2, -2),
    Sketcher.Constraint("Parallel", 3, 23),
    Sketcher.Constraint("Parallel", 1, 26),
    Sketcher.Constraint("Parallel", 10, 30),
    Sketcher.Constraint("Parallel", 17, 37),
    Sketcher.Constraint("Parallel", 15, 40),
    Sketcher.Constraint("Parallel", 54, 65),
    Sketcher.Constraint("Parallel", 51, 67),
    Sketcher.Constraint("Parallel", 61, 72),
    Sketcher.Constraint("Parallel", 58, 74),
    Sketcher.Constraint("Parallel", 47, 79),
    Sketcher.Constraint("Parallel", 44, 81),
    Sketcher.Constraint("Horizontal", 24, 2, 38, 2),
    Sketcher.Constraint("Horizontal", 45, 2, 59, 2),
    Sketcher.Constraint("Vertical", 38, 2, 45, 2),
    Sketcher.Constraint("Equal", 1, 3),
    Sketcher.Constraint("Equal", 3, 8),
    Sketcher.Constraint("Equal", 23, 26),
    Sketcher.Constraint("Equal", 26, 30),
    Sketcher.Constraint("Diameter", 0, Q("10 in")),
    Sketcher.Constraint("Radius", 2, Q("0.3 in")),
    Sketcher.Constraint("Radius", 22, Q("0.5 in")),
    Sketcher.Constraint("Radius", 28, Q("1.4 in")),
    Sketcher.Constraint("Diameter", 7, Q("0.25 in")),
    Sketcher.Constraint("Angle", 1, Q("-70 deg")),
    Sketcher.Constraint("Angle", 3, Q("-170 deg")),
    Sketcher.Constraint("Angle", 8, Q("-130 deg")),
    Sketcher.Constraint("Radius", 5, Q("3.925 in")),
    Sketcher.Constraint("Radius", 24, 6.0),
    Sketcher.Constraint("DistanceX", 42, 3, -1, 1, Q("2.525 in")),
    Sketcher.Constraint("DistanceX", 2, 3, -1, 1, Q("2.5863002 in")),
    Sketcher.Constraint("DistanceX", -1, 1, 28, 3, Q("1.2625 in")),
    Sketcher.Constraint("DistanceY", -1, 1, 7, 3, 29.0),
    Sketcher.Constraint("DistanceY", -1, 1, 14, 3, 58.0),
    Sketcher.Constraint("DistanceY", 24, 2, -1, 1, 26.0),
])
sketch1.setExpression("Constraints[184]", "Params.sketch1_diameter")
sketch1.setExpression("Constraints[185]", "Params.sketch1_radius")
sketch1.setExpression("Constraints[186]", "Params.sketch1_radius2")
sketch1.setExpression("Constraints[187]", "Params.sketch1_radius3")
sketch1.setExpression("Constraints[188]", "Params.sketch1_diameter2")
pad1 = body.newObject("PartDesign::Pad", "Pad")
pad1.Profile = sketch1
pad1.setExpression("Length", "Params.pad1_length")

doc.recompute()
